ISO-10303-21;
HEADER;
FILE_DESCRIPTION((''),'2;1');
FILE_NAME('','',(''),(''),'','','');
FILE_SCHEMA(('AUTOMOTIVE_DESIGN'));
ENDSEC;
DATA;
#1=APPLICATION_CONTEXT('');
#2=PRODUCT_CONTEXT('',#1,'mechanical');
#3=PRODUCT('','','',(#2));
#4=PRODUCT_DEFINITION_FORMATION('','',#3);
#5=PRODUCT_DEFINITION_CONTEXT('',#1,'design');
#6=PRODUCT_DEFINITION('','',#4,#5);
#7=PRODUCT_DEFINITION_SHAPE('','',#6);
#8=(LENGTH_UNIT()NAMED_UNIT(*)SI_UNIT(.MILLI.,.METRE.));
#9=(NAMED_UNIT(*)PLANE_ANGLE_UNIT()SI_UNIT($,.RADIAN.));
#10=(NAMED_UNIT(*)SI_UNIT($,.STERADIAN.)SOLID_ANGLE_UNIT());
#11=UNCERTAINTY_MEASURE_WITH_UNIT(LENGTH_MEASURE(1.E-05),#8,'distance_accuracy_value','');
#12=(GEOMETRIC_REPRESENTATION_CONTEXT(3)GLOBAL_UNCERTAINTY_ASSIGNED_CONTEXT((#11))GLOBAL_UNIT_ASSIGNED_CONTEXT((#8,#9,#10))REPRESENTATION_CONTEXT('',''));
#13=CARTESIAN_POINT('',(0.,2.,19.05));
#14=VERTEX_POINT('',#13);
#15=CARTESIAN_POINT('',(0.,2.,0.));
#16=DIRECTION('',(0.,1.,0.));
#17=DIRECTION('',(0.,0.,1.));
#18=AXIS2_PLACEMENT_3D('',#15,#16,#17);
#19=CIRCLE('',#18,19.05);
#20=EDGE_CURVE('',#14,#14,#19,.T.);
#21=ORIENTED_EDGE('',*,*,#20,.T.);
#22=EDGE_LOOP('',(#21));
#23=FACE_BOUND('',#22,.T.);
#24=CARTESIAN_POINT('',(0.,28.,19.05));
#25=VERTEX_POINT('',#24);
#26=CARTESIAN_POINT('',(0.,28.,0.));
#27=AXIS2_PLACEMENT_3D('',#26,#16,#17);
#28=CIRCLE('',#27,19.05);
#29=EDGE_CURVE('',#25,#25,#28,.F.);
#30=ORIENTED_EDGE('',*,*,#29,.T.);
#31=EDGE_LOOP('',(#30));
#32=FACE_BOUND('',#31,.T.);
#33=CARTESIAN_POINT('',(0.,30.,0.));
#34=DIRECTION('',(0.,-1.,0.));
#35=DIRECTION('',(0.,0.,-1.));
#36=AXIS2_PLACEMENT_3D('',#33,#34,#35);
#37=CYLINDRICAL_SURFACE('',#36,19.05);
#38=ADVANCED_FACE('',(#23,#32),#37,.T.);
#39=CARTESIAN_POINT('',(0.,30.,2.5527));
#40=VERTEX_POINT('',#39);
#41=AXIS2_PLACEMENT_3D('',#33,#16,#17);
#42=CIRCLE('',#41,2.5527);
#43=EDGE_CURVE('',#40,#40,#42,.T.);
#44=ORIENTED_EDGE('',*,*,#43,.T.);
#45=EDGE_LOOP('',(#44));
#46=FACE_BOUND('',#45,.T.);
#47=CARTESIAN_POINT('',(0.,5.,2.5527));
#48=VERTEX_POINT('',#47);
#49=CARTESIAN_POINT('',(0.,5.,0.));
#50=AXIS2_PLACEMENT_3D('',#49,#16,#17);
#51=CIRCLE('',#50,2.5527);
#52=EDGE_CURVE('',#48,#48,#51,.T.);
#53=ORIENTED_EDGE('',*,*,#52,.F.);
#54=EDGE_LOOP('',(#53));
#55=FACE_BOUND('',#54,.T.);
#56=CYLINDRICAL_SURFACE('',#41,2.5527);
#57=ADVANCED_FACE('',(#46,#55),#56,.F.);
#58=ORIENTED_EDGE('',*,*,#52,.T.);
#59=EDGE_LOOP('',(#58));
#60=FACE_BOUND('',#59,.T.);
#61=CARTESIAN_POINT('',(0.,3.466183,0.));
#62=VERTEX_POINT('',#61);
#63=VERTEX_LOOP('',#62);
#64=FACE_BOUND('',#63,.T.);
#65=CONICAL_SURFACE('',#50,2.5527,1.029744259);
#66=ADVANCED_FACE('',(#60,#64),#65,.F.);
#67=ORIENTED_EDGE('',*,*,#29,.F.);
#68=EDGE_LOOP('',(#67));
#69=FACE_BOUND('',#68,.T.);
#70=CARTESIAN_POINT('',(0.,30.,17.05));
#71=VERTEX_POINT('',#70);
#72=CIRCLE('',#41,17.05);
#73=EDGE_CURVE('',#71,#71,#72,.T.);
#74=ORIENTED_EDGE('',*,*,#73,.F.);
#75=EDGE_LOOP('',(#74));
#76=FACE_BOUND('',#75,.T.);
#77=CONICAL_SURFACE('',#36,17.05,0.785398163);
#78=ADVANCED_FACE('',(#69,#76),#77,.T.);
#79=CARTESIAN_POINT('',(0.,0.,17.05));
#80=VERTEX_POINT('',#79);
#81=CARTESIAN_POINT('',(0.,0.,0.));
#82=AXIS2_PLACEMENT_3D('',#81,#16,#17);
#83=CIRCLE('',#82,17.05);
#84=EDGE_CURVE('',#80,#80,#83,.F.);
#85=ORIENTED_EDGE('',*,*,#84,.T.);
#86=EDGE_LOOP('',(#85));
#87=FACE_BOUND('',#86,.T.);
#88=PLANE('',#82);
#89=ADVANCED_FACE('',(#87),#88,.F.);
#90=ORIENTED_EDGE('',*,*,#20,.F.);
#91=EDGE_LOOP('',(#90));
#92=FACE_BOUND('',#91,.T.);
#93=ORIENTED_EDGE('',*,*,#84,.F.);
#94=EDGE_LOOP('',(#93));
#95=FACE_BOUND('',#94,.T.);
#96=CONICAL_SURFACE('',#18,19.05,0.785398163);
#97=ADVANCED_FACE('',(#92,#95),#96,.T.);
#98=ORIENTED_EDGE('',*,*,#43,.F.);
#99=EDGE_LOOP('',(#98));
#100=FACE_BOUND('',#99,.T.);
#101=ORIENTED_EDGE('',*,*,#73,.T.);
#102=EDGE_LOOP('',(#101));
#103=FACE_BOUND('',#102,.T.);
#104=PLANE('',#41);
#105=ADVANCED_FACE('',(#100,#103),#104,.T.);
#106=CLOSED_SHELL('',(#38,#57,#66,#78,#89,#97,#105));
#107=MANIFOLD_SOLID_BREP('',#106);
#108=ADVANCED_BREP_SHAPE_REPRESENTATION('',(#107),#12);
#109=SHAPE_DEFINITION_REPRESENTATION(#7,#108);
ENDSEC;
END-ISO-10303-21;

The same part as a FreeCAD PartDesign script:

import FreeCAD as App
import Part
import Sketcher

V = App.Vector


def edges_at(feature, points):
    """Names of the edges that pass closest to the given points."""
    edges = feature.Shape.Edges
    near = lambda p: min(range(len(edges)), key=lambda i: edges[i].distToShape(Part.Vertex(*p))[0])
    return sorted({f"Edge{near(p) + 1}" for p in points})

doc = App.newDocument("Part")
params = doc.addObject("Spreadsheet::Sheet", "Params")
for row, (alias, value) in enumerate([
    ("sketch1_diameter", "38.1 mm"),
    ("pad1_length", "30 mm"),
    ("chamfer_size", "2 mm"),
    ("hole_diameter", "5.1054 mm"),
    ("hole_depth", "25 mm"),
    ("chamfer2_size", "2 mm"),
], start=1):
    params.set(f"A{row}", alias)
    params.set(f"B{row}", "=" + value)
    params.setAlias(f"B{row}", alias)

body = doc.addObject("PartDesign::Body", "Body")

sketch1 = doc.addObject("Sketcher::SketchObject", "Sketch")
body.addObject(sketch1)
sketch1.AttachmentSupport = (doc.XZ_Plane, [""])
sketch1.MapMode = "FlatFace"
sketch1.addGeometry(Part.Circle(V(0, 0, 0), V(0, 0, 1), 19), False)
sketch1.addConstraint([
    Sketcher.Constraint("Coincident", 0, 3, -1, 1),
    Sketcher.Constraint("Diameter", 0, 38.1),
])
sketch1.setExpression("Constraints[1]", "Params.sketch1_diameter")
pad1 = doc.addObject("PartDesign::Pad", "Pad")
body.addObject(pad1)
pad1.Profile = sketch1
pad1.setExpression("Length", "Params.pad1_length")
pad1.Reversed = True
doc.recompute()

chamfer = doc.addObject("PartDesign::Chamfer", "Chamfer")
body.addObject(chamfer)
chamfer.Base = (pad1, edges_at(pad1, [(0, 30, -19.05)]))
chamfer.setExpression("Size", "Params.chamfer_size")

sketch2 = doc.addObject("Sketcher::SketchObject", "Sketch001")
body.addObject(sketch2)
sketch2.AttachmentSupport = (doc.XZ_Plane, [""])
sketch2.MapMode = "FlatFace"
sketch2.AttachmentOffset = App.Placement(V(0, 0, -30), App.Rotation())
sketch2.addGeometry(Part.Circle(V(0, 0, 0), V(0, 0, 1), 2.6), False)
sketch2.addConstraint([
    Sketcher.Constraint("Coincident", 0, 3, -1, 1),
    Sketcher.Constraint("Diameter", 0, 5.1054),
])
doc.recompute()
hole = doc.addObject("PartDesign::Hole", "Hole")
body.addObject(hole)
hole.Profile = sketch2
hole.ThreadType = "None"
hole.setExpression("Diameter", "Params.hole_diameter")
hole.DepthType = "Dimension"
hole.setExpression("Depth", "Params.hole_depth")
hole.DrillPoint = "Angled"
hole.DrillPointAngle = 118
hole.Reversed = True
doc.recompute()

chamfer2 = doc.addObject("PartDesign::Chamfer", "Chamfer001")
body.addObject(chamfer2)
chamfer2.Base = (hole, edges_at(hole, [(0, 0, -19.05)]))
chamfer2.setExpression("Size", "Params.chamfer2_size")

doc.recompute()
